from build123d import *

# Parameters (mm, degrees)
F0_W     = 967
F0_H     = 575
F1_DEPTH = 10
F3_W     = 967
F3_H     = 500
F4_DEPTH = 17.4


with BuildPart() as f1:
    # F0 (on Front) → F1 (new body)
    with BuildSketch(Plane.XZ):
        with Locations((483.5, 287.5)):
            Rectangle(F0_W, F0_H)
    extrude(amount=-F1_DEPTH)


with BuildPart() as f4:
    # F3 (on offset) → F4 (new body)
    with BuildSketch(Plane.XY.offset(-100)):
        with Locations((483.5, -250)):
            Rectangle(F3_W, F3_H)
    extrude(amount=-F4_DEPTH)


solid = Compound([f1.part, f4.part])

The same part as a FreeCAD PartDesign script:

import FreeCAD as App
import Part
import Sketcher

V = App.Vector


def add_polygon(sketch, points):
    """Adds a closed chain of lines whose ends are joined by coincident constraints."""
    first, n = sketch.GeometryCount, len(points)
    for a, b in zip(points, points[1:] + points[:1]):
        sketch.addGeometry(Part.LineSegment(App.Vector(*a, 0), App.Vector(*b, 0)), False)
    for i in range(n):
        sketch.addConstraint(Sketcher.Constraint("Coincident", first + i, 2, first + (i + 1) % n, 1))

doc = App.newDocument("Part")
body = doc.addObject("PartDesign::Body", "Body")

# Sketch on XZ plane
sketch1 = body.newObject("Sketcher::SketchObject", "Sketch")
sketch1.AttachmentSupport = (doc.getObject("XZ_Plane"), [""])
sketch1.MapMode = "FlatFace"
add_polygon(sketch1, [(0, 575), (0, 0), (967, 0), (967, 575)])  # lines 0-3
sketch1.addConstraint(Sketcher.Constraint("Vertical", 0))
sketch1.addConstraint(Sketcher.Constraint("Horizontal", 1))
sketch1.addConstraint(Sketcher.Constraint("Vertical", 2))
sketch1.addConstraint(Sketcher.Constraint("Horizontal", 3))
sketch1.addConstraint(Sketcher.Constraint("Coincident", 0, 2, -1, 1))
sketch1.addConstraint(Sketcher.Constraint("DistanceX", 1, 1, 1, 2, 967.0))
sketch1.addConstraint(Sketcher.Constraint("DistanceY", 0, 2, 0, 1, 575.0))
pad1 = body.newObject("PartDesign::Pad", "Pad")
pad1.Profile = sketch1
pad1.Length = 10
pad1.Reversed = True
body2 = doc.addObject("PartDesign::Body", "Body001")

# Sketch on XY plane
sketch2 = body2.newObject("Sketcher::SketchObject", "Sketch001")
sketch2.AttachmentSupport = (doc.getObject("XY_Plane001"), [""])
sketch2.MapMode = "FlatFace"
sketch2.AttachmentOffset = App.Placement(V(0, 0, -100), App.Rotation())
add_polygon(sketch2, [(0, 0), (0, -500), (967, -500), (967, 0)])  # lines 0-3
sketch2.addConstraint(Sketcher.Constraint("Vertical", 0))
sketch2.addConstraint(Sketcher.Constraint("Horizontal", 1))
sketch2.addConstraint(Sketcher.Constraint("Vertical", 2))
sketch2.addConstraint(Sketcher.Constraint("Horizontal", 3))
sketch2.addConstraint(Sketcher.Constraint("Coincident", 3, 2, -1, 1))
sketch2.addConstraint(Sketcher.Constraint("DistanceX", 1, 1, 1, 2, 967.0))
sketch2.addConstraint(Sketcher.Constraint("DistanceY", 0, 2, 0, 1, 500.0))
pad2 = body2.newObject("PartDesign::Pad", "Pad001")
pad2.Profile = sketch2
pad2.Length = 17.4
pad2.Reversed = True

doc.recompute()
